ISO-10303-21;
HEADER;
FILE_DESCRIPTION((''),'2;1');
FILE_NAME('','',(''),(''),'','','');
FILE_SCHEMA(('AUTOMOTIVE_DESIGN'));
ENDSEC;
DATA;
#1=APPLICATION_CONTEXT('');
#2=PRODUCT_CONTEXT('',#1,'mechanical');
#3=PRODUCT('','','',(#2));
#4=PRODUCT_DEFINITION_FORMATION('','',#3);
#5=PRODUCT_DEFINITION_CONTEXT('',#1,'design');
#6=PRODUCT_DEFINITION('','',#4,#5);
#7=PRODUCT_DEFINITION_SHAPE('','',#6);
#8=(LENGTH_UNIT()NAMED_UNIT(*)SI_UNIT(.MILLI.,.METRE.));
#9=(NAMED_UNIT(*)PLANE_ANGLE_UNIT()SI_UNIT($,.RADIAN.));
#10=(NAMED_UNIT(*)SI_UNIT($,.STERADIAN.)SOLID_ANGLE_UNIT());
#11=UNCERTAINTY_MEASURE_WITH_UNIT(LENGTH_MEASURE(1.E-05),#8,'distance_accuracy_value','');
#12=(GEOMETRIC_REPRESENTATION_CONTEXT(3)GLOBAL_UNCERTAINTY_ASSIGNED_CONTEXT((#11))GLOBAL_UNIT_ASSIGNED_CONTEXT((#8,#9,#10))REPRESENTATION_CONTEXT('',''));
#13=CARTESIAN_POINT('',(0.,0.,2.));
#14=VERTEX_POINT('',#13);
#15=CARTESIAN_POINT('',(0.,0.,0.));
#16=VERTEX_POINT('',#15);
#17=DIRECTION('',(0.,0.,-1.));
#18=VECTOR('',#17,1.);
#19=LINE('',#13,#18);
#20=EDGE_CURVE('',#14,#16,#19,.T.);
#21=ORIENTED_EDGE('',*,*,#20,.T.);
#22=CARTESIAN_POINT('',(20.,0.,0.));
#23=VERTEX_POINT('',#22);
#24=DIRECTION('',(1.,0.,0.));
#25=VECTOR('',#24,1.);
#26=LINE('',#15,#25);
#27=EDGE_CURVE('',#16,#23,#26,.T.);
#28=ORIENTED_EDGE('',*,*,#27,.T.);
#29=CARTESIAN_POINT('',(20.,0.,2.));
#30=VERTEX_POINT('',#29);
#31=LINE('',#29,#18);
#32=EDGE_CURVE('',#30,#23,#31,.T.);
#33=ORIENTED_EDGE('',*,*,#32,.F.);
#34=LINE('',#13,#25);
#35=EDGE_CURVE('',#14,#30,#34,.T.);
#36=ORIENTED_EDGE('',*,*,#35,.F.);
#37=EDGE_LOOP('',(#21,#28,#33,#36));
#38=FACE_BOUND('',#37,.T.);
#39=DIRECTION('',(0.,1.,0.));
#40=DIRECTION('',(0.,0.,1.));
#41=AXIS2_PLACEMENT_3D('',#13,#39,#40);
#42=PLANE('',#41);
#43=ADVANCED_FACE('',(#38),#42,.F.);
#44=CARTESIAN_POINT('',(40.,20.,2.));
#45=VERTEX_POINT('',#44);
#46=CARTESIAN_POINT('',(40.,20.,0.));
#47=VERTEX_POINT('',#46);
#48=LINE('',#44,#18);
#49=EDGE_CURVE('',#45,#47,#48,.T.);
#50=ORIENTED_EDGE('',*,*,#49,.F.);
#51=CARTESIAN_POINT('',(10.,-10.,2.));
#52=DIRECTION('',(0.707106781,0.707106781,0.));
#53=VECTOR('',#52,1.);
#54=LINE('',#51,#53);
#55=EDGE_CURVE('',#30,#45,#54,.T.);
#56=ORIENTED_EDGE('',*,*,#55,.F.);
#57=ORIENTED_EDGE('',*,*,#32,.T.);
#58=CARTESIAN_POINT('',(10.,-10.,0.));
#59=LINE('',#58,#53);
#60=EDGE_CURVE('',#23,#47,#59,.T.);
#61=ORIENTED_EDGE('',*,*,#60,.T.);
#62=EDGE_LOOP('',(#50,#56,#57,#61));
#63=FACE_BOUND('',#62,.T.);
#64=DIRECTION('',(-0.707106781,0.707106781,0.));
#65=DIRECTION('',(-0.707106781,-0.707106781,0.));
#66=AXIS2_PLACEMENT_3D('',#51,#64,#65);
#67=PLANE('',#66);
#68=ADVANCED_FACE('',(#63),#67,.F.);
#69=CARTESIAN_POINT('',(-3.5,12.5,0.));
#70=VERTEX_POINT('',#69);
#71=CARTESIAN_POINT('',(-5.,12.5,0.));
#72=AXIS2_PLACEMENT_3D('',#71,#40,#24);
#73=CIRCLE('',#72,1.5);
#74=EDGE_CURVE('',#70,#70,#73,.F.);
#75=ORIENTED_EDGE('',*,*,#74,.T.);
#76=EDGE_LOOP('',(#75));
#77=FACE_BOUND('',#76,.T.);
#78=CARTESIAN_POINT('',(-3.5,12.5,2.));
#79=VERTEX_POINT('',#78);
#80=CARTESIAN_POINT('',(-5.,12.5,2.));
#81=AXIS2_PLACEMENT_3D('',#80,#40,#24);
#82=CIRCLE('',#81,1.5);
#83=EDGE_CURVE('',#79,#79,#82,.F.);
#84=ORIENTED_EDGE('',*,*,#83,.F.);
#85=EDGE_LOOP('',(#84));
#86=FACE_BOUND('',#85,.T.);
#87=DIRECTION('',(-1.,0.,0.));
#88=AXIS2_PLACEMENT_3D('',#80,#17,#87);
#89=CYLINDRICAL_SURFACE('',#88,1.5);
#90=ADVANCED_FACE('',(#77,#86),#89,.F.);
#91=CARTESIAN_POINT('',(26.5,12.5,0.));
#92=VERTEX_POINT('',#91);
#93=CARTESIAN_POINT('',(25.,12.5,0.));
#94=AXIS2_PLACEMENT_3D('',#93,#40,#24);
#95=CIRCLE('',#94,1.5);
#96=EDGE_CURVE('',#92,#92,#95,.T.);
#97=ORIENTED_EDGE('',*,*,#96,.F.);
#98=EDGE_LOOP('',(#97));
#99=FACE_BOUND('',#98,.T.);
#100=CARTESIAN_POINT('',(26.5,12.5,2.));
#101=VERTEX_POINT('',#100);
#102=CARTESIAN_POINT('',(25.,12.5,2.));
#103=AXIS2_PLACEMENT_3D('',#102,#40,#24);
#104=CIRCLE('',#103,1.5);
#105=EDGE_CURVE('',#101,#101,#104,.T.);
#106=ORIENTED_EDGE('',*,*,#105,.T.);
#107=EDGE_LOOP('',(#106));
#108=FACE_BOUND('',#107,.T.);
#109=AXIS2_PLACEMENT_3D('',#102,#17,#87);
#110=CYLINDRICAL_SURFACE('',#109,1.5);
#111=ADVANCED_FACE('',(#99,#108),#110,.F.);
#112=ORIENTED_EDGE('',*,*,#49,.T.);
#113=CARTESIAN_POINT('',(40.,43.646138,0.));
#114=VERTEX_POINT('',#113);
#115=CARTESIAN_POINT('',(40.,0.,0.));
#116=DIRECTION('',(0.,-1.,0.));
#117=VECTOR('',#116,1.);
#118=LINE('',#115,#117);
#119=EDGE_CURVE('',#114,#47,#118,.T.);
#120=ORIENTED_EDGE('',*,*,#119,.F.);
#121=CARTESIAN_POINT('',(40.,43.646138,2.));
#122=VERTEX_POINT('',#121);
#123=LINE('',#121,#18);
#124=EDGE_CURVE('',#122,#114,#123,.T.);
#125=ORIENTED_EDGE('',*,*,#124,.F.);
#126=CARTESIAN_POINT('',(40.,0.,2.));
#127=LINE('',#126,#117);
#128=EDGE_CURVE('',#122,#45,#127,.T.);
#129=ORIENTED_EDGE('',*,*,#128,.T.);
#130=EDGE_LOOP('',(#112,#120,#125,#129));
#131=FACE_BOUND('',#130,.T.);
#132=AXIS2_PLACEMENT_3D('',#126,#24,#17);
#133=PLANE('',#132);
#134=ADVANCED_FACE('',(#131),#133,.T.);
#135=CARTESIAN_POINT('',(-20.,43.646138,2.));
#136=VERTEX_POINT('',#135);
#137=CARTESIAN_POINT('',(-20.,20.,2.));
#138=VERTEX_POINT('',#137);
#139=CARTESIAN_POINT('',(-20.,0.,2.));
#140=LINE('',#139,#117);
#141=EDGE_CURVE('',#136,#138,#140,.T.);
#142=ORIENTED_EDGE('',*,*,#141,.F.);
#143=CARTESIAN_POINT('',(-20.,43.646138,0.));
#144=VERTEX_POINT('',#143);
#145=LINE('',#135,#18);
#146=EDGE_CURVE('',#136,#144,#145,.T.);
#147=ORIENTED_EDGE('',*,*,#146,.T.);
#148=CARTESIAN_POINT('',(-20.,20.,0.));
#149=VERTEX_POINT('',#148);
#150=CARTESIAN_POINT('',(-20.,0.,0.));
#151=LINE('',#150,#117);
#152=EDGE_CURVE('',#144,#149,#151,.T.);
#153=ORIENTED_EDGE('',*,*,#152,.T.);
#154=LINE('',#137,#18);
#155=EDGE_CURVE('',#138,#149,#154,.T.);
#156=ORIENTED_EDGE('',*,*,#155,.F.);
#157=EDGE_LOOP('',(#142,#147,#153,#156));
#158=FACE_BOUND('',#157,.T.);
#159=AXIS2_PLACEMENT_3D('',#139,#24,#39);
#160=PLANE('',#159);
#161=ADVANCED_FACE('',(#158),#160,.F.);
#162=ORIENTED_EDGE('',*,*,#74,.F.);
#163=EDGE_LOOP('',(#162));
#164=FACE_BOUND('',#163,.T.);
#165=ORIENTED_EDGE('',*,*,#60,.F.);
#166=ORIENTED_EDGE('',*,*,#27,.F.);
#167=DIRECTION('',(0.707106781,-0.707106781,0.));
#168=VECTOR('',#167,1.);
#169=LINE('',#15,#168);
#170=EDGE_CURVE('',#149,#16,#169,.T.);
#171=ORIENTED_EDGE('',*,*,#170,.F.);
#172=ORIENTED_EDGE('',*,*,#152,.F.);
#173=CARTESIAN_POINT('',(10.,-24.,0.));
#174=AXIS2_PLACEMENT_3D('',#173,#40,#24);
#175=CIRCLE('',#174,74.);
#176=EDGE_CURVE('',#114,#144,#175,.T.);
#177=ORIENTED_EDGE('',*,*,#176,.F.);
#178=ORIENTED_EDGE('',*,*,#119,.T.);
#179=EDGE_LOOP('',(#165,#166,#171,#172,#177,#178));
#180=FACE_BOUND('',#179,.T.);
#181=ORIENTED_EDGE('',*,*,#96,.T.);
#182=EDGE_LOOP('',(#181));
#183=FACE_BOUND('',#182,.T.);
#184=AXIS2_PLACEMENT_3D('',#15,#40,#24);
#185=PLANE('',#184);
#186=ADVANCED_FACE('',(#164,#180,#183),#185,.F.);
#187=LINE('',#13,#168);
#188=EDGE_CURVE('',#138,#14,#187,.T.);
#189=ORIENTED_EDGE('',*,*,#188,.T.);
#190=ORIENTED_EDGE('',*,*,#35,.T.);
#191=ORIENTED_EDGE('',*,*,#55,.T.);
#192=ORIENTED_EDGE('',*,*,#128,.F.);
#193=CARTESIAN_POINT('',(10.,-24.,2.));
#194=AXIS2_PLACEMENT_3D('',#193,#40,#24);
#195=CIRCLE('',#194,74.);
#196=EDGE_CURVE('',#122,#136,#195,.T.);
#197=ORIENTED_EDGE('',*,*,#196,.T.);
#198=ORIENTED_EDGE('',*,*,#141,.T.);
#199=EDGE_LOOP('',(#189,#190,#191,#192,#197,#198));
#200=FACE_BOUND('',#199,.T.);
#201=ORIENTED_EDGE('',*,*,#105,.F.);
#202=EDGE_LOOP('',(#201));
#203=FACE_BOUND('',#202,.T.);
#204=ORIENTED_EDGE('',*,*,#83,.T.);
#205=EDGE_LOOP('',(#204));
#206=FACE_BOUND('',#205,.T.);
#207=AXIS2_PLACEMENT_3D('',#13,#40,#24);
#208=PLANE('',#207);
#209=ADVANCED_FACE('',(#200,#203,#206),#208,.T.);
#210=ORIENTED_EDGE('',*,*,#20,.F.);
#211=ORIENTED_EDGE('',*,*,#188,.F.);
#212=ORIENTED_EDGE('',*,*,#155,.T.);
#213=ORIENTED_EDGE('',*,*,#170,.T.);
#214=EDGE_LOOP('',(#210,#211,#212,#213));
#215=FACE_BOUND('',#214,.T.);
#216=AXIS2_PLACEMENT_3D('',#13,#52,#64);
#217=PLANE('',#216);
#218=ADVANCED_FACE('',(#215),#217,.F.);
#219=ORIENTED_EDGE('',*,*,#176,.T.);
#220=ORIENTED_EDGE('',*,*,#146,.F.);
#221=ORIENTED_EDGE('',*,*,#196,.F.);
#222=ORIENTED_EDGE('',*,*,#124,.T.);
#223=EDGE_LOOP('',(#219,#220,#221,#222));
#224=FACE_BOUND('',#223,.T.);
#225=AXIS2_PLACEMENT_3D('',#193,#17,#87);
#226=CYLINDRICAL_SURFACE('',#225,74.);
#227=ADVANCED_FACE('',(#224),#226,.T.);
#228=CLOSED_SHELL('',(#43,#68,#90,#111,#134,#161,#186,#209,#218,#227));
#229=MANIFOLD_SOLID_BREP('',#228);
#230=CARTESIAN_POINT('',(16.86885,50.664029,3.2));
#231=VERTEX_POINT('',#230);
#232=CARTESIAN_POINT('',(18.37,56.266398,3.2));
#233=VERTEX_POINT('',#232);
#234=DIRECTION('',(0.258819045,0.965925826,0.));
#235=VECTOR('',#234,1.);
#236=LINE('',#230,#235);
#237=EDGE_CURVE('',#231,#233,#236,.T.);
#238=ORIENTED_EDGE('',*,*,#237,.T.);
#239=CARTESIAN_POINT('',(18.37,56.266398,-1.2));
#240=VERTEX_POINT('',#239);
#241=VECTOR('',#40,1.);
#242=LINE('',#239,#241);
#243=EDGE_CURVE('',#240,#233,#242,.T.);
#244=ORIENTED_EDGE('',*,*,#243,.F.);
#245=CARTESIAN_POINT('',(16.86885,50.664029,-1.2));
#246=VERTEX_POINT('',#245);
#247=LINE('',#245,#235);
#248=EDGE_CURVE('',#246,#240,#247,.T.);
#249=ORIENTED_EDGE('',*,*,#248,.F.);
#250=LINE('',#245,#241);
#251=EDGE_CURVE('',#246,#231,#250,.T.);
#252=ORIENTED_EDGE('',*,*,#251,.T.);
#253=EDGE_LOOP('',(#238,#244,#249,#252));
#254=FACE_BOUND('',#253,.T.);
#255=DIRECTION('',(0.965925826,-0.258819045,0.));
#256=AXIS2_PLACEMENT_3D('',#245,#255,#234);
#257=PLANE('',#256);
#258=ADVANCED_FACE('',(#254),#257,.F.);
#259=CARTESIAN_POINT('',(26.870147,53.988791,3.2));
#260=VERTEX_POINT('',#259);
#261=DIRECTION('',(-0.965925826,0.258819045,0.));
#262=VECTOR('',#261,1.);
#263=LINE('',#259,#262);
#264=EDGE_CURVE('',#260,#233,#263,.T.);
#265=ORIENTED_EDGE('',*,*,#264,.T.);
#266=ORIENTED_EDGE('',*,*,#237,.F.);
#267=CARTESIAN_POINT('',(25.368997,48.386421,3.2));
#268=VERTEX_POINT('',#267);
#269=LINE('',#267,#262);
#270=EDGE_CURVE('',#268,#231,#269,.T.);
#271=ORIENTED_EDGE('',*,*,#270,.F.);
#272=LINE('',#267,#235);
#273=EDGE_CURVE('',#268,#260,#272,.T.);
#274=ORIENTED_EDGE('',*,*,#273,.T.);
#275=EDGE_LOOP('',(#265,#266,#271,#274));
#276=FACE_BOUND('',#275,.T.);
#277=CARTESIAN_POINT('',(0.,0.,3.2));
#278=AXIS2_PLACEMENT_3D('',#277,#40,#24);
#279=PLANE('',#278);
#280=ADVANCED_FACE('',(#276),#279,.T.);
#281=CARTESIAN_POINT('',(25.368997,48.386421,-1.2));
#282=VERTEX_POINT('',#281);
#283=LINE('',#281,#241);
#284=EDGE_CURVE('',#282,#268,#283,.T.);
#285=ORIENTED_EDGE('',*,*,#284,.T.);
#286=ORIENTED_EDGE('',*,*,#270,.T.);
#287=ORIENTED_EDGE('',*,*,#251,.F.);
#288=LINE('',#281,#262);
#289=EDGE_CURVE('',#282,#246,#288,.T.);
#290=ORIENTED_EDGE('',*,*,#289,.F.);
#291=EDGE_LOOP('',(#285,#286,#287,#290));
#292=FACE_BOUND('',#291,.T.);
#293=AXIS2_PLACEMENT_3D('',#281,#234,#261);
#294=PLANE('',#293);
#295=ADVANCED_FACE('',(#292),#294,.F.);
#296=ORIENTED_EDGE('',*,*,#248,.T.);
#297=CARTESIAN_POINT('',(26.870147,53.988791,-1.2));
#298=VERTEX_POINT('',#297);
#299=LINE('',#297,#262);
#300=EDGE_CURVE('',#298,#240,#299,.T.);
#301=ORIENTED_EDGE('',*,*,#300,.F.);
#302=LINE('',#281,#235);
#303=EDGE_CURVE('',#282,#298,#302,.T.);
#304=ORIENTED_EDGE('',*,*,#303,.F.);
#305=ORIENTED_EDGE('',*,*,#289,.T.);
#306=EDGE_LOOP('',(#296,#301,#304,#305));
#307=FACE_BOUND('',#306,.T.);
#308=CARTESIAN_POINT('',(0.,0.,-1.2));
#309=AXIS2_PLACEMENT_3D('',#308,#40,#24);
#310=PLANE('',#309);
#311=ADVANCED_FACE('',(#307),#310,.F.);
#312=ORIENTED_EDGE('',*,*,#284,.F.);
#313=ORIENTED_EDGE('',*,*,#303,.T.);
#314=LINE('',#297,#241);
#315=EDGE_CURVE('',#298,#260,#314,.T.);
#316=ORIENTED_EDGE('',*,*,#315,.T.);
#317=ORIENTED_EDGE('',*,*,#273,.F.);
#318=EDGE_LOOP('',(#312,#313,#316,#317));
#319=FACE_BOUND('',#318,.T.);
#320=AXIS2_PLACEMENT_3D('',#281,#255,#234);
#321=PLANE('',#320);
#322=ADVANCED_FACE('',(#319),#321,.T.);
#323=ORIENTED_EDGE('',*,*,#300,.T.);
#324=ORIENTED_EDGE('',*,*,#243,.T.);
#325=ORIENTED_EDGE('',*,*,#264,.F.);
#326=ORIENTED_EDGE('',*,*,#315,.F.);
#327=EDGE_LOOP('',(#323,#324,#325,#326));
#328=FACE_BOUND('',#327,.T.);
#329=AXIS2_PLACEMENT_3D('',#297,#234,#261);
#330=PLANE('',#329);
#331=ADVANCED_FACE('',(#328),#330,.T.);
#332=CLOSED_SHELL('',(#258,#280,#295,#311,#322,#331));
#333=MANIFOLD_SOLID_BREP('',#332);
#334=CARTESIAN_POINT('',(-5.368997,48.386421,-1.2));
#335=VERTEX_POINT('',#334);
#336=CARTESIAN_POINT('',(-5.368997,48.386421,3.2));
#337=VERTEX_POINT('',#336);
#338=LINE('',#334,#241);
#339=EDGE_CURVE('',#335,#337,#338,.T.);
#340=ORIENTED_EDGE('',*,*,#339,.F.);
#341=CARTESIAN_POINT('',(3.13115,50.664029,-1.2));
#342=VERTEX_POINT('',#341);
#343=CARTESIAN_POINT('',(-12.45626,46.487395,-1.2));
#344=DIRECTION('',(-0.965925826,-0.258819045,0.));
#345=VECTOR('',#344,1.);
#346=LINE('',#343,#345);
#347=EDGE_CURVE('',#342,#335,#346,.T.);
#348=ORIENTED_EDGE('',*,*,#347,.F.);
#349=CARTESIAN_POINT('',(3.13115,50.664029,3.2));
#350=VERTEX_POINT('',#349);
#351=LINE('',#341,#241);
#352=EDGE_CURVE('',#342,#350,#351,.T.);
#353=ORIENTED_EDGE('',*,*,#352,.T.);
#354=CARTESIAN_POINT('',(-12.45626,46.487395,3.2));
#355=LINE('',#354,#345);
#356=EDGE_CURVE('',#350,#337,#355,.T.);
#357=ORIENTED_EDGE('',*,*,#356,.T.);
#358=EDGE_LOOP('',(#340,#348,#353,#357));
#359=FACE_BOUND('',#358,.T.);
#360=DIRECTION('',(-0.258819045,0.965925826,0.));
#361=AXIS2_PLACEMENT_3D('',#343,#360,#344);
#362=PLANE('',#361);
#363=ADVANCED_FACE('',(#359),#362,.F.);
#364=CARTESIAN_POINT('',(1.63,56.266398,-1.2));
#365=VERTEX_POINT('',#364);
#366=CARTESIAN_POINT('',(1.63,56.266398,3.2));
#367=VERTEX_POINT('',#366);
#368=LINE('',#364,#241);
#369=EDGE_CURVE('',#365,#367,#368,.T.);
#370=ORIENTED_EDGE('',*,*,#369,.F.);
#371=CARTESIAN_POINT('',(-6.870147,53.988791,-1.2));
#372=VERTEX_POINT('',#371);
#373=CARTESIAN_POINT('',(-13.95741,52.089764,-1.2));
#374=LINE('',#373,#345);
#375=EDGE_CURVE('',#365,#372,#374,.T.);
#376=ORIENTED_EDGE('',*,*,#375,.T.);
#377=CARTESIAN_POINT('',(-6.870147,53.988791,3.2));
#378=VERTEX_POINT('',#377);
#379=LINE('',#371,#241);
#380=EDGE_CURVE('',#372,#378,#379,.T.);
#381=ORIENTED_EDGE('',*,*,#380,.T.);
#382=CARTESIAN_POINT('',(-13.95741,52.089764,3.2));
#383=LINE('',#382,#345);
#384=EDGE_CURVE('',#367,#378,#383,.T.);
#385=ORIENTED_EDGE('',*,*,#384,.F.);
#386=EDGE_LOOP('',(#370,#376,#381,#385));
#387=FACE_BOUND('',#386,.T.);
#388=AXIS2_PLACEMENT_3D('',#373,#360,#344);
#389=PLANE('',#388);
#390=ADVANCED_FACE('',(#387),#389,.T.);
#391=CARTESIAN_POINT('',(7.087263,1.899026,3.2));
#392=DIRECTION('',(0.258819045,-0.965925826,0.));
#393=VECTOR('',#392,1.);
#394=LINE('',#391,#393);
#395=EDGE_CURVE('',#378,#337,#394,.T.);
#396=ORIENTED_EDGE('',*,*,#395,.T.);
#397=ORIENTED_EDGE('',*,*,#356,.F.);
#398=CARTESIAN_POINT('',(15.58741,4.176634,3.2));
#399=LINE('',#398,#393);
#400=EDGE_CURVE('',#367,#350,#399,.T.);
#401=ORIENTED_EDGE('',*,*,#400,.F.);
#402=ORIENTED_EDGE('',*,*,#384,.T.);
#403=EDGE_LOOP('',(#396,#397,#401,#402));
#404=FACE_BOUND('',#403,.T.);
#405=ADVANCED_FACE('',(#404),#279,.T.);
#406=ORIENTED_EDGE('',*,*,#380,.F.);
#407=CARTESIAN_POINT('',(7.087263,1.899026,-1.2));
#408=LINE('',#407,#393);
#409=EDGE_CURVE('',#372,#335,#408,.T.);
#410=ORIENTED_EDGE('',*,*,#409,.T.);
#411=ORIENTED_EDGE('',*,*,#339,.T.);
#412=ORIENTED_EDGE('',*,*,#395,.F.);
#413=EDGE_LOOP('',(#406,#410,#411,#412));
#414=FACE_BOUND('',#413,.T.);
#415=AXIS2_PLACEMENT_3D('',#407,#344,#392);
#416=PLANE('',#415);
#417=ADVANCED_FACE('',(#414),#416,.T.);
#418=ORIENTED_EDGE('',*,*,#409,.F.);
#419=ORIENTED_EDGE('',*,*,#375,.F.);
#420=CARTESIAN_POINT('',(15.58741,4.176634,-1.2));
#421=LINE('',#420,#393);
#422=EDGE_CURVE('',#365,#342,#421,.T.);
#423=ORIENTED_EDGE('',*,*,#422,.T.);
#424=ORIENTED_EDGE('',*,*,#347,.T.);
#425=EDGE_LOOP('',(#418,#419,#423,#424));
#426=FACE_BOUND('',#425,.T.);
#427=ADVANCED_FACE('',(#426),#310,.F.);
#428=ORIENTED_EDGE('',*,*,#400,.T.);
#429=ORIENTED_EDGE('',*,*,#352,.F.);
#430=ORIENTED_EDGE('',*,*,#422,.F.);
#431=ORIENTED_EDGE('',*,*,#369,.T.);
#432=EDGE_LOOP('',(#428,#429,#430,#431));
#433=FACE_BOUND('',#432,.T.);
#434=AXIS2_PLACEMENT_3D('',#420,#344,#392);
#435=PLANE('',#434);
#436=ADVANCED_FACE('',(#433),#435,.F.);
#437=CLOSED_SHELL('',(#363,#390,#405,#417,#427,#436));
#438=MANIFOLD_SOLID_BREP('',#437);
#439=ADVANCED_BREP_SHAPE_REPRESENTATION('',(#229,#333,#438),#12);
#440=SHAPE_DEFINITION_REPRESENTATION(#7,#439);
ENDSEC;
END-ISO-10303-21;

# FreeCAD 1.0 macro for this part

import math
import FreeCAD as App
import Part
import Sketcher
from FreeCAD import Vector
Q = App.Units.Quantity

doc = App.newDocument("Part")
body = doc.addObject("PartDesign::Body", "Body")

sketch1 = body.newObject("Sketcher::SketchObject", "Sketch")
sketch1.AttachmentSupport = (doc.getObject("XY_Plane"), [""])
sketch1.MapMode = "FlatFace"
sketch1.addGeometry([
    Part.LineSegment(Vector(2, 56, 0), Vector(-7, 54, 0)),
    Part.LineSegment(Vector(-7, 54, 0), Vector(-5, 48, 0)),
    Part.LineSegment(Vector(-5, 48, 0), Vector(3, 51, 0)),
    Part.LineSegment(Vector(3, 51, 0), Vector(2, 56, 0)),
], False)
sketch1.addConstraint([
    Sketcher.Constraint("Coincident", 0, 2, 1, 1),
    Sketcher.Constraint("Coincident", 1, 2, 2, 1),
    Sketcher.Constraint("Coincident", 2, 2, 3, 1),
    Sketcher.Constraint("Coincident", 3, 2, 0, 1),
    Sketcher.Constraint("Perpendicular", 0, 1),
    Sketcher.Constraint("Perpendicular", 1, 2),
    Sketcher.Constraint("Perpendicular", 2, 3),
    Sketcher.Constraint("Angle", 0, Q("-165 deg")),
    Sketcher.Constraint("Distance", 0, 8.8),
    Sketcher.Constraint("Distance", 1, 5.8),
    Sketcher.Constraint("DistanceX", -1, 1, 3, 2, 1.63),
    Sketcher.Constraint("DistanceY", -1, 1, 3, 2, 56.266398),
])
pad1 = body.newObject("PartDesign::Pad", "Pad")
pad1.Profile = sketch1
pad1.Type = "TwoLengths"
pad1.Length = 3.2
pad1.Length2 = 1.2
body2 = doc.addObject("PartDesign::Body", "Body001")

sketch2 = body2.newObject("Sketcher::SketchObject", "Sketch001")
sketch2.AttachmentSupport = (doc.getObject("XY_Plane001"), [""])
sketch2.MapMode = "FlatFace"
sketch2.addGeometry([
    Part.LineSegment(Vector(27, 54, 0), Vector(18, 56, 0)),
    Part.LineSegment(Vector(18, 56, 0), Vector(17, 51, 0)),
    Part.LineSegment(Vector(17, 51, 0), Vector(25, 48, 0)),
    Part.LineSegment(Vector(25, 48, 0), Vector(27, 54, 0)),
], False)
sketch2.addConstraint([
    Sketcher.Constraint("Coincident", 0, 2, 1, 1),
    Sketcher.Constraint("Coincident", 1, 2, 2, 1),
    Sketcher.Constraint("Coincident", 2, 2, 3, 1),
    Sketcher.Constraint("Coincident", 3, 2, 0, 1),
    Sketcher.Constraint("Perpendicular", 0, 1),
    Sketcher.Constraint("Perpendicular", 1, 2),
    Sketcher.Constraint("Perpendicular", 2, 3),
    Sketcher.Constraint("Angle", 0, Q("165 deg")),
    Sketcher.Constraint("Distance", 0, 8.8),
    Sketcher.Constraint("Distance", 1, 5.8),
    Sketcher.Constraint("DistanceX", -1, 1, 0, 2, 18.37),
    Sketcher.Constraint("DistanceY", -1, 1, 0, 2, 56.266398),
])
pad2 = body2.newObject("PartDesign::Pad", "Pad001")
pad2.Profile = sketch2
pad2.Type = "TwoLengths"
pad2.Length = 3.2
pad2.Length2 = 1.2
body3 = doc.addObject("PartDesign::Body", "Body002")

sketch3 = body3.newObject("Sketcher::SketchObject", "Sketch002")
sketch3.AttachmentSupport = (doc.getObject("XY_Plane002"), [""])
sketch3.MapMode = "FlatFace"
sketch3.addGeometry([
    Part.LineSegment(Vector(40, 20, 0), Vector(40, 43.6, 0)),
    Part.ArcOfCircle(Part.Circle(Vector(10, -24, 0), Vector(0, 0, 1), 74), math.radians(66), math.radians(114)),
    Part.LineSegment(Vector(-20, 43.6, 0), Vector(-20, 20, 0)),
    Part.LineSegment(Vector(-20, 20, 0), Vector(0, 0, 0)),
    Part.LineSegment(Vector(0, 0, 0), Vector(20, 0, 0)),
    Part.LineSegment(Vector(20, 0, 0), Vector(40, 20, 0)),
    Part.Circle(Vector(25, 12.5, 0), Vector(0, 0, 1), 1.5),
    Part.Circle(Vector(-5, 12.5, 0), Vector(0, 0, 1), 1.5),
], False)
sketch3.addConstraint([
    Sketcher.Constraint("Coincident", 0, 2, 1, 1),
    Sketcher.Constraint("Coincident", 1, 2, 2, 1),
    Sketcher.Constraint("Coincident", 2, 2, 3, 1),
    Sketcher.Constraint("Coincident", 3, 2, 4, 1),
    Sketcher.Constraint("Coincident", 4, 2, 5, 1),
    Sketcher.Constraint("Coincident", 5, 2, 0, 1),
    Sketcher.Constraint("Vertical", 0),
    Sketcher.Constraint("Vertical", 2),
    Sketcher.Constraint("Horizontal", 4),
    Sketcher.Constraint("Coincident", 3, 2, -1, 1),
    Sketcher.Constraint("Equal", 6, 7),
    Sketcher.Constraint("Perpendicular", 3, 5),
    Sketcher.Constraint("Horizontal", 6, 3, 7, 3),
    Sketcher.Constraint("Horizontal", 0, 2, 1, 2),
    Sketcher.Constraint("Horizontal", 2, 2, 5, 2),
    Sketcher.Constraint("Equal", 3, 5),
    Sketcher.Constraint("Diameter", 6, 3.0),
    Sketcher.Constraint("Radius", 1, 74.0),
    Sketcher.Constraint("DistanceX", 4, 1, 4, 2, 20.0),
    Sketcher.Constraint("DistanceY", 1, 3, -1, 1, 24.0),
    Sketcher.Constraint("DistanceX", -1, 1, 6, 3, 25.0),
    Sketcher.Constraint("DistanceX", 7, 3, -1, 1, 5.0),
    Sketcher.Constraint("DistanceX", -1, 1, 0, 2, 40.0),
    Sketcher.Constraint("DistanceY", -1, 1, 6, 3, 12.5),
])
pad3 = body3.newObject("PartDesign::Pad", "Pad002")
pad3.Profile = sketch3
pad3.Length = 2

doc.recompute()
